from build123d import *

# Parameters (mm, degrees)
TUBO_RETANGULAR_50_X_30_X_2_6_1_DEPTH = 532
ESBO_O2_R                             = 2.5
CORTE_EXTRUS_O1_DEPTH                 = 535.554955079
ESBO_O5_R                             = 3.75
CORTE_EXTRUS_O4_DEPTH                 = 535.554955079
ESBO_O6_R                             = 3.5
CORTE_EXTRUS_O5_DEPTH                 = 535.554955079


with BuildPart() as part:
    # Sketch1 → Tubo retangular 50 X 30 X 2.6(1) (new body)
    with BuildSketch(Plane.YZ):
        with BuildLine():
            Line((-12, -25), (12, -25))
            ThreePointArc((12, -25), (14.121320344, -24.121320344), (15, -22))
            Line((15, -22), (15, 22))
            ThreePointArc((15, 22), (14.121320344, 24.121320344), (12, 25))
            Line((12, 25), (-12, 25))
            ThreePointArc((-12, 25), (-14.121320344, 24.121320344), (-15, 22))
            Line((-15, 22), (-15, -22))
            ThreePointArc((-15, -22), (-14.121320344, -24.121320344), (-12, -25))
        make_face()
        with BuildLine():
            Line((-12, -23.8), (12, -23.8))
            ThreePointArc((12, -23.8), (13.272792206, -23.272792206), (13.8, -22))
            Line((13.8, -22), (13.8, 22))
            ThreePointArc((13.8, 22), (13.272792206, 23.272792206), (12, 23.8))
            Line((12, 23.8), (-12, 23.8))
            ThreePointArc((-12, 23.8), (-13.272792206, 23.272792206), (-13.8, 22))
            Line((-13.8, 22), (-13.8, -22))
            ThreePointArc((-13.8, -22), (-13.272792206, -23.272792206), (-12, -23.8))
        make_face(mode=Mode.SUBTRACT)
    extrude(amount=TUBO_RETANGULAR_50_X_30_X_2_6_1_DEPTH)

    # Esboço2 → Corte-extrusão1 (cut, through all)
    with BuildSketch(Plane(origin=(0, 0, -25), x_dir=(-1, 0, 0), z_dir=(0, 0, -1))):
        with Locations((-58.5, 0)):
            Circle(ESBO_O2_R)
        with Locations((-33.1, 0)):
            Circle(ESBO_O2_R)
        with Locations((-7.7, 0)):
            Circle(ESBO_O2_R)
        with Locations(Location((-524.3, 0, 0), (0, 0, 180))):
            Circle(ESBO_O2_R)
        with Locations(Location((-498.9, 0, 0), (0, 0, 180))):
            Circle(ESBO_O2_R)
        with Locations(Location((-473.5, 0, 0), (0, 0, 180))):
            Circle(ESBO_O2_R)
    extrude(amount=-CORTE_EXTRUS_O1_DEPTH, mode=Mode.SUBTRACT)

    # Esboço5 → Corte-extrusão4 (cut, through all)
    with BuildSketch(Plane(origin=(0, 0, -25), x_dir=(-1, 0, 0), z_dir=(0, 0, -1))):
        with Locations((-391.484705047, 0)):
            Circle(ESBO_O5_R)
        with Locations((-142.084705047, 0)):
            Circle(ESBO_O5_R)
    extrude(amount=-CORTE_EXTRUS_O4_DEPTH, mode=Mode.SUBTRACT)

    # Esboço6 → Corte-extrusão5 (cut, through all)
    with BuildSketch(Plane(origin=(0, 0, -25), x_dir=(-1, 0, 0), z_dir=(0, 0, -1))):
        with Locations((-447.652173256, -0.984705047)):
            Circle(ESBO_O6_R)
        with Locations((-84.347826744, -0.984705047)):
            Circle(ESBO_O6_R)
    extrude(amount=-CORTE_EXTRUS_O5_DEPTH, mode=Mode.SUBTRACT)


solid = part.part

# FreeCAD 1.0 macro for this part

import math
import FreeCAD as App
import Part
import Sketcher

doc = App.newDocument("Part")
params = doc.addObject("Spreadsheet::Sheet", "Params")
for row, (alias, value) in enumerate([
    ("sketch1_radius", "3 mm"),
    ("sketch1_radius2", "1.8 mm"),
    ("sketch1_width", "24 mm"),
    ("sketch1_height", "44 mm"),
    ("pad1_length", "532 mm"),
    ("sketch2_diameter", "5 mm"),
    ("sketch3_diameter", "7.5 mm"),
    ("sketch4_diameter", "7 mm"),
], start=1):
    params.set(f"A{row}", alias)
    params.set(f"B{row}", "=" + value)
    params.setAlias(f"B{row}", alias)

body = doc.addObject("PartDesign::Body", "Body")

# Sketch on YZ plane
sketch1 = body.newObject("Sketcher::SketchObject", "Sketch")
sketch1.AttachmentSupport = (doc.getObject("YZ_Plane"), [""])
sketch1.MapMode = "FlatFace"
sketch1.addGeometry([
    Part.LineSegment(App.Vector(-12, -25, 0), App.Vector(12, -25, 0)),  # 0
    Part.ArcOfCircle(Part.Circle(App.Vector(12, -22, 0), App.Vector(0, 0, 1), 3), math.radians(-90), math.radians(0)),  # 1
    Part.LineSegment(App.Vector(15, -22, 0), App.Vector(15, 22, 0)),  # 2
    Part.ArcOfCircle(Part.Circle(App.Vector(12, 22, 0), App.Vector(0, 0, 1), 3), math.radians(0), math.radians(90)),  # 3
    Part.LineSegment(App.Vector(12, 25, 0), App.Vector(-12, 25, 0)),  # 4
    Part.ArcOfCircle(Part.Circle(App.Vector(-12, 22, 0), App.Vector(0, 0, 1), 3), math.radians(90), math.radians(180)),  # 5
    Part.LineSegment(App.Vector(-15, 22, 0), App.Vector(-15, -22, 0)),  # 6
    Part.ArcOfCircle(Part.Circle(App.Vector(-12, -22, 0), App.Vector(0, 0, 1), 3), math.radians(180), math.radians(270)),  # 7
    Part.LineSegment(App.Vector(12, -23.8, 0), App.Vector(-12, -23.8, 0)),  # 8
    Part.ArcOfCircle(Part.Circle(App.Vector(-12, -22, 0), App.Vector(0, 0, 1), 1.8), math.radians(180), math.radians(270)),  # 9
    Part.LineSegment(App.Vector(-13.8, -22, 0), App.Vector(-13.8, 22, 0)),  # 10
    Part.ArcOfCircle(Part.Circle(App.Vector(-12, 22, 0), App.Vector(0, 0, 1), 1.8), math.radians(90), math.radians(180)),  # 11
    Part.LineSegment(App.Vector(-12, 23.8, 0), App.Vector(12, 23.8, 0)),  # 12
    Part.ArcOfCircle(Part.Circle(App.Vector(12, 22, 0), App.Vector(0, 0, 1), 1.8), math.radians(0), math.radians(90)),  # 13
    Part.LineSegment(App.Vector(13.8, 22, 0), App.Vector(13.8, -22, 0)),  # 14
    Part.ArcOfCircle(Part.Circle(App.Vector(12, -22, 0), App.Vector(0, 0, 1), 1.8), math.radians(-90), math.radians(0)),  # 15
], False)
sketch1.addConstraint([
    Sketcher.Constraint("Tangent", 0, 2, 1, 1),
    Sketcher.Constraint("Tangent", 1, 2, 2, 1),
    Sketcher.Constraint("Tangent", 2, 2, 3, 1),
    Sketcher.Constraint("Tangent", 3, 2, 4, 1),
    Sketcher.Constraint("Tangent", 4, 2, 5, 1),
    Sketcher.Constraint("Tangent", 5, 2, 6, 1),
    Sketcher.Constraint("Tangent", 6, 2, 7, 1),
    Sketcher.Constraint("Tangent", 7, 2, 0, 1),
    Sketcher.Constraint("Tangent", 8, 2, 9, 2),
    Sketcher.Constraint("Tangent", 9, 1, 10, 1),
    Sketcher.Constraint("Tangent", 10, 2, 11, 2),
    Sketcher.Constraint("Tangent", 11, 1, 12, 1),
    Sketcher.Constraint("Tangent", 12, 2, 13, 2),
    Sketcher.Constraint("Tangent", 13, 1, 14, 1),
    Sketcher.Constraint("Tangent", 14, 2, 15, 2),
    Sketcher.Constraint("Tangent", 15, 1, 8, 1),
    Sketcher.Constraint("Horizontal", 0),
    Sketcher.Constraint("Vertical", 2),
    Sketcher.Constraint("Horizontal", 4),
    Sketcher.Constraint("Vertical", 6),
    Sketcher.Constraint("Horizontal", 8),
    Sketcher.Constraint("Vertical", 10),
    Sketcher.Constraint("Horizontal", 12),
    Sketcher.Constraint("Vertical", 14),
    Sketcher.Constraint("Coincident", 9, 3, 7, 3),
    Sketcher.Constraint("Coincident", 11, 3, 5, 3),
    Sketcher.Constraint("Coincident", 13, 3, 3, 3),
    Sketcher.Constraint("Equal", 1, 3),
    Sketcher.Constraint("Equal", 3, 5),
    Sketcher.Constraint("Equal", 5, 7),
    Sketcher.Constraint("Equal", 13, 15),
    Sketcher.Constraint("Symmetric", 1, 3, 5, 3, -1, 1),
    Sketcher.Constraint("Radius", 1, 3.0),
    Sketcher.Constraint("Radius", 9, 1.8),
    Sketcher.Constraint("DistanceX", 0, 1, 0, 2, 24.0),
    Sketcher.Constraint("DistanceY", 2, 1, 2, 2, 44.0),
])
sketch1.setExpression("Constraints[32]", "Params.sketch1_radius")
sketch1.setExpression("Constraints[33]", "Params.sketch1_radius2")
sketch1.setExpression("Constraints[34]", "Params.sketch1_width")
sketch1.setExpression("Constraints[35]", "Params.sketch1_height")
pad1 = body.newObject("PartDesign::Pad", "Pad")
pad1.Profile = sketch1
pad1.setExpression("Length", "Params.pad1_length")

# Sketch on XY plane
sketch2 = body.newObject("Sketcher::SketchObject", "Sketch001")
sketch2.AttachmentSupport = (doc.getObject("XY_Plane"), [""])
sketch2.MapMode = "FlatFace"
sketch2.AttachmentOffset = App.Placement(App.Vector(0, 0, -25), App.Rotation())
sketch2.addGeometry([
    Part.Circle(App.Vector(58.5, 0, 0), App.Vector(0, 0, 1), 2.5),  # 0
    Part.Circle(App.Vector(33.1, 0, 0), App.Vector(0, 0, 1), 2.5),  # 1
    Part.Circle(App.Vector(7.7, 0, 0), App.Vector(0, 0, 1), 2.5),  # 2
    Part.Circle(App.Vector(524.3, 0, 0), App.Vector(0, 0, 1), 2.5),  # 3
    Part.Circle(App.Vector(498.9, 0, 0), App.Vector(0, 0, 1), 2.5),  # 4
    Part.Circle(App.Vector(473.5, 0, 0), App.Vector(0, 0, 1), 2.5),  # 5
], False)
sketch2.addConstraint([
    Sketcher.Constraint("Equal", 0, 1),
    Sketcher.Constraint("Equal", 1, 2),
    Sketcher.Constraint("Equal", 2, 3),
    Sketcher.Constraint("Equal", 3, 4),
    Sketcher.Constraint("Equal", 4, 5),
    Sketcher.Constraint("PointOnObject", 0, 3, -1),
    Sketcher.Constraint("PointOnObject", 1, 3, -1),
    Sketcher.Constraint("PointOnObject", 2, 3, -1),
    Sketcher.Constraint("PointOnObject", 3, 3, -1),
    Sketcher.Constraint("PointOnObject", 4, 3, -1),
    Sketcher.Constraint("PointOnObject", 5, 3, -1),
    Sketcher.Constraint("Diameter", 0, 5.0),
    Sketcher.Constraint("DistanceX", 0, 3, 5, 3, 415.0),
    Sketcher.Constraint("DistanceX", -1, 1, 0, 3, 58.5),
    Sketcher.Constraint("DistanceX", -1, 1, 1, 3, 33.1),
    Sketcher.Constraint("DistanceX", -1, 1, 2, 3, 7.7),
    Sketcher.Constraint("DistanceX", -1, 1, 3, 3, 524.3),
    Sketcher.Constraint("DistanceX", -1, 1, 4, 3, 498.9),
])
sketch2.setExpression("Constraints[11]", "Params.sketch2_diameter")
pocket1 = body.newObject("PartDesign::Pocket", "Pocket")
pocket1.Profile = sketch2
pocket1.Type = "ThroughAll"
pocket1.Reversed = True

# Sketch on XY plane
sketch3 = body.newObject("Sketcher::SketchObject", "Sketch002")
sketch3.AttachmentSupport = (doc.getObject("XY_Plane"), [""])
sketch3.MapMode = "FlatFace"
sketch3.AttachmentOffset = App.Placement(App.Vector(0, 0, -25), App.Rotation())
sketch3.addGeometry([
    Part.Circle(App.Vector(391.5, 0, 0), App.Vector(0, 0, 1), 3.8),
    Part.Circle(App.Vector(142.1, 0, 0), App.Vector(0, 0, 1), 3.8),
], False)
sketch3.addConstraint([
    Sketcher.Constraint("Equal", 0, 1),
    Sketcher.Constraint("PointOnObject", 0, 3, -1),
    Sketcher.Constraint("PointOnObject", 1, 3, -1),
    Sketcher.Constraint("Diameter", 0, 7.5),
    Sketcher.Constraint("DistanceX", 1, 3, 0, 3, 249.4),
    Sketcher.Constraint("DistanceX", -1, 1, 0, 3, 391.484705),
])
sketch3.setExpression("Constraints[3]", "Params.sketch3_diameter")
pocket2 = body.newObject("PartDesign::Pocket", "Pocket001")
pocket2.Profile = sketch3
pocket2.Type = "ThroughAll"
pocket2.Reversed = True

# Sketch on XY plane
sketch4 = body.newObject("Sketcher::SketchObject", "Sketch003")
sketch4.AttachmentSupport = (doc.getObject("XY_Plane"), [""])
sketch4.MapMode = "FlatFace"
sketch4.AttachmentOffset = App.Placement(App.Vector(0, 0, -25), App.Rotation())
sketch4.addGeometry([
    Part.Circle(App.Vector(447.7, -1, 0), App.Vector(0, 0, 1), 3.5),
    Part.Circle(App.Vector(84.3, -1, 0), App.Vector(0, 0, 1), 3.5),
], False)
sketch4.addConstraint([
    Sketcher.Constraint("Equal", 0, 1),
    Sketcher.Constraint("Horizontal", 0, 3, 1, 3),
    Sketcher.Constraint("Diameter", 0, 7.0),
    Sketcher.Constraint("DistanceX", -1, 1, 0, 3, 447.652173),
    Sketcher.Constraint("DistanceY", 0, 3, -1, 1, 0.984705),
    Sketcher.Constraint("DistanceX", -1, 1, 1, 3, 84.347827),
])
sketch4.setExpression("Constraints[2]", "Params.sketch4_diameter")
pocket3 = body.newObject("PartDesign::Pocket", "Pocket002")
pocket3.Profile = sketch4
pocket3.Type = "ThroughAll"
pocket3.Reversed = True

doc.recompute()
